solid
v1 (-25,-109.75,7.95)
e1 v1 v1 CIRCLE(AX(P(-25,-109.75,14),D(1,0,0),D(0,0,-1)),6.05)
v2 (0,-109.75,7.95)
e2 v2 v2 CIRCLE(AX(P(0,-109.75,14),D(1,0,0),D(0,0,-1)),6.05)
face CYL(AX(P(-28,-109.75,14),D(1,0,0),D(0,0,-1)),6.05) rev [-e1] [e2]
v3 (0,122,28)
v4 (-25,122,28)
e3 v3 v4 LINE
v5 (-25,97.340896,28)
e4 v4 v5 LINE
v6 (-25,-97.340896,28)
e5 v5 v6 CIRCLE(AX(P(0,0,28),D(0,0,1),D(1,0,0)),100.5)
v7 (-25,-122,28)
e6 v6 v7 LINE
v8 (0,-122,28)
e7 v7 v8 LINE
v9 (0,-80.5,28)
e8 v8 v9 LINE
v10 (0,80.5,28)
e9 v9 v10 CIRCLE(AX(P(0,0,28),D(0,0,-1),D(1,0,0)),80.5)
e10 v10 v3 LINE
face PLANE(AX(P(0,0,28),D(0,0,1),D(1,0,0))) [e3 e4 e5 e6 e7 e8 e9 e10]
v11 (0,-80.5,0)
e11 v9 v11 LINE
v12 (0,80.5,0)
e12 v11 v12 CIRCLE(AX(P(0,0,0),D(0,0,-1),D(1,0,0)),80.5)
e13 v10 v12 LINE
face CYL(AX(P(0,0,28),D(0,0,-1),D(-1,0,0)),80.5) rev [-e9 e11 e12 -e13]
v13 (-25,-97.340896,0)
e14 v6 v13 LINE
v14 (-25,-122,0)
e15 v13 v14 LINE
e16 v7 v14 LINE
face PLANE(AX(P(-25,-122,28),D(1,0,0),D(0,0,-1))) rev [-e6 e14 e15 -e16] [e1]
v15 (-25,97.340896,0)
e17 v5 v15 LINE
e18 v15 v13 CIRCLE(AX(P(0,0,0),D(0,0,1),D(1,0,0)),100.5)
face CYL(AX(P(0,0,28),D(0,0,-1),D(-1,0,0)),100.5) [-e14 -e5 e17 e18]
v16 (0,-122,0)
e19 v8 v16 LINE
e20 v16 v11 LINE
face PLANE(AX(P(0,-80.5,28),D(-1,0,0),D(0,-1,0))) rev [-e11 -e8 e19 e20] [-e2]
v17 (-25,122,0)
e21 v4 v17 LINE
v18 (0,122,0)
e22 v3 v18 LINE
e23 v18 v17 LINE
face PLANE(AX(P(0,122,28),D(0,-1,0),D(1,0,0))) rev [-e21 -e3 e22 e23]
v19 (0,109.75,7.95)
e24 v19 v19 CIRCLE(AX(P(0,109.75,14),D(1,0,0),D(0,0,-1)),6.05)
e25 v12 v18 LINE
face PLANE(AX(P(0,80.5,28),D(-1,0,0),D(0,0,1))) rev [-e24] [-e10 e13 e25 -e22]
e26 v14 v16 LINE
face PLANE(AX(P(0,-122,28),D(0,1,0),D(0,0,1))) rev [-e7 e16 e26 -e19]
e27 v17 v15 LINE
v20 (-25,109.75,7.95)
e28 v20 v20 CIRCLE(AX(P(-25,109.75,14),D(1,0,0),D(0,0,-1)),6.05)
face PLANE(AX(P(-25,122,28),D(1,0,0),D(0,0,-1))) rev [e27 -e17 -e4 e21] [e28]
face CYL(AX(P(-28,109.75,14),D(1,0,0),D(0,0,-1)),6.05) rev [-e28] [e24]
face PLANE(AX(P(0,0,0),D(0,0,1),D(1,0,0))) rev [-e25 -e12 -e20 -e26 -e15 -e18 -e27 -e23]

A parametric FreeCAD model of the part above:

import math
import FreeCAD as App
import Part
import Sketcher

V = App.Vector
Q = App.Units.Quantity

doc = App.newDocument("Part")
params = doc.addObject("Spreadsheet::Sheet", "Params")
for row, (alias, value) in enumerate([
    ("sketch1_radius", "80.5 mm"),
    ("sketch1_radius2", "100.5 mm"),
    ("sketch1_width", "25 mm"),
    ("sketch1_height", "41.5 mm"),
    ("pad1_length", "28 mm"),
    ("sketch2_diameter", "12.1 mm"),
    ("pocket1_length", "28 mm"),
], start=1):
    params.set(f"A{row}", alias)
    params.set(f"B{row}", "=" + value)
    params.setAlias(f"B{row}", alias)

body = doc.addObject("PartDesign::Body", "Body")

# Sketch on XY plane
sketch1 = doc.addObject("Sketcher::SketchObject", "Sketch")
body.addObject(sketch1)
sketch1.AttachmentSupport = (doc.XY_Plane, [""])
sketch1.MapMode = "FlatFace"
sketch1.addGeometry([
    Part.LineSegment(V(0, -122, 0), V(0, -80, 0)),  # 0
    Part.ArcOfCircle(Part.Circle(V(0, 0, 0), V(0, 0, 1), 80), math.radians(90), math.radians(270)),  # 1
    Part.LineSegment(V(0, 80, 0), V(0, 122, 0)),  # 2
    Part.LineSegment(V(0, 122, 0), V(-25, 122, 0)),  # 3
    Part.LineSegment(V(-25, 122, 0), V(-25, 97, 0)),  # 4
    Part.ArcOfCircle(Part.Circle(V(0, 0, 0), V(0, 0, 1), 100), math.radians(104), math.radians(256)),  # 5
    Part.LineSegment(V(-25, -97, 0), V(-25, -122, 0)),  # 6
    Part.LineSegment(V(-25, -122, 0), V(0, -122, 0)),  # 7
], False)
sketch1.addConstraint([
    Sketcher.Constraint("Coincident", 0, 2, 1, 2),
    Sketcher.Constraint("Coincident", 1, 1, 2, 1),
    Sketcher.Constraint("Coincident", 2, 2, 3, 1),
    Sketcher.Constraint("Coincident", 3, 2, 4, 1),
    Sketcher.Constraint("Coincident", 4, 2, 5, 1),
    Sketcher.Constraint("Coincident", 5, 2, 6, 1),
    Sketcher.Constraint("Coincident", 6, 2, 7, 1),
    Sketcher.Constraint("Coincident", 7, 2, 0, 1),
    Sketcher.Constraint("Vertical", 0),
    Sketcher.Constraint("Vertical", 2),
    Sketcher.Constraint("Horizontal", 3),
    Sketcher.Constraint("Vertical", 4),
    Sketcher.Constraint("Vertical", 6),
    Sketcher.Constraint("Horizontal", 7),
    Sketcher.Constraint("Coincident", 1, 3, -1, 1),
    Sketcher.Constraint("Coincident", 5, 3, -1, 1),
    Sketcher.Constraint("Symmetric", 2, 2, 7, 2, -1, 1),
    Sketcher.Constraint("PointOnObject", 0, 2, -2),
    Sketcher.Constraint("Vertical", 4, 2, 5, 2),
    Sketcher.Constraint("Radius", 1, Q("80.5 mm")),
    Sketcher.Constraint("Radius", 5, Q("100.5 mm")),
    Sketcher.Constraint("DistanceX", 3, 2, 3, 1, Q("25 mm")),
    Sketcher.Constraint("DistanceY", 0, 1, 0, 2, Q("41.5 mm")),
])
sketch1.setExpression("Constraints[19]", "Params.sketch1_radius")
sketch1.setExpression("Constraints[20]", "Params.sketch1_radius2")
sketch1.setExpression("Constraints[21]", "Params.sketch1_width")
sketch1.setExpression("Constraints[22]", "Params.sketch1_height")
pad1 = doc.addObject("PartDesign::Pad", "Pad")
body.addObject(pad1)
pad1.Profile = sketch1
pad1.setExpression("Length", "Params.pad1_length")

# Sketch on YZ plane
sketch2 = doc.addObject("Sketcher::SketchObject", "Sketch001")
body.addObject(sketch2)
sketch2.AttachmentSupport = (doc.YZ_Plane, [""])
sketch2.MapMode = "FlatFace"
sketch2.addGeometry([
    Part.Circle(V(110, 14, 0), V(0, 0, 1), 6),
    Part.Circle(V(-110, 14, 0), V(0, 0, 1), 6),
], False)
sketch2.addConstraint([
    Sketcher.Constraint("Equal", 0, 1),
    Sketcher.Constraint("Symmetric", 0, 3, 1, 3, -2),
    Sketcher.Constraint("Diameter", 0, Q("12.1 mm")),
    Sketcher.Constraint("DistanceY", -1, 1, 0, 3, Q("14 mm")),
    Sketcher.Constraint("DistanceX", 1, 3, 0, 3, Q("219.5 mm")),
])
sketch2.setExpression("Constraints[2]", "Params.sketch2_diameter")
pocket1 = doc.addObject("PartDesign::Pocket", "Pocket")
body.addObject(pocket1)
pocket1.Profile = sketch2
pocket1.setExpression("Length", "Params.pocket1_length")

doc.recompute()
